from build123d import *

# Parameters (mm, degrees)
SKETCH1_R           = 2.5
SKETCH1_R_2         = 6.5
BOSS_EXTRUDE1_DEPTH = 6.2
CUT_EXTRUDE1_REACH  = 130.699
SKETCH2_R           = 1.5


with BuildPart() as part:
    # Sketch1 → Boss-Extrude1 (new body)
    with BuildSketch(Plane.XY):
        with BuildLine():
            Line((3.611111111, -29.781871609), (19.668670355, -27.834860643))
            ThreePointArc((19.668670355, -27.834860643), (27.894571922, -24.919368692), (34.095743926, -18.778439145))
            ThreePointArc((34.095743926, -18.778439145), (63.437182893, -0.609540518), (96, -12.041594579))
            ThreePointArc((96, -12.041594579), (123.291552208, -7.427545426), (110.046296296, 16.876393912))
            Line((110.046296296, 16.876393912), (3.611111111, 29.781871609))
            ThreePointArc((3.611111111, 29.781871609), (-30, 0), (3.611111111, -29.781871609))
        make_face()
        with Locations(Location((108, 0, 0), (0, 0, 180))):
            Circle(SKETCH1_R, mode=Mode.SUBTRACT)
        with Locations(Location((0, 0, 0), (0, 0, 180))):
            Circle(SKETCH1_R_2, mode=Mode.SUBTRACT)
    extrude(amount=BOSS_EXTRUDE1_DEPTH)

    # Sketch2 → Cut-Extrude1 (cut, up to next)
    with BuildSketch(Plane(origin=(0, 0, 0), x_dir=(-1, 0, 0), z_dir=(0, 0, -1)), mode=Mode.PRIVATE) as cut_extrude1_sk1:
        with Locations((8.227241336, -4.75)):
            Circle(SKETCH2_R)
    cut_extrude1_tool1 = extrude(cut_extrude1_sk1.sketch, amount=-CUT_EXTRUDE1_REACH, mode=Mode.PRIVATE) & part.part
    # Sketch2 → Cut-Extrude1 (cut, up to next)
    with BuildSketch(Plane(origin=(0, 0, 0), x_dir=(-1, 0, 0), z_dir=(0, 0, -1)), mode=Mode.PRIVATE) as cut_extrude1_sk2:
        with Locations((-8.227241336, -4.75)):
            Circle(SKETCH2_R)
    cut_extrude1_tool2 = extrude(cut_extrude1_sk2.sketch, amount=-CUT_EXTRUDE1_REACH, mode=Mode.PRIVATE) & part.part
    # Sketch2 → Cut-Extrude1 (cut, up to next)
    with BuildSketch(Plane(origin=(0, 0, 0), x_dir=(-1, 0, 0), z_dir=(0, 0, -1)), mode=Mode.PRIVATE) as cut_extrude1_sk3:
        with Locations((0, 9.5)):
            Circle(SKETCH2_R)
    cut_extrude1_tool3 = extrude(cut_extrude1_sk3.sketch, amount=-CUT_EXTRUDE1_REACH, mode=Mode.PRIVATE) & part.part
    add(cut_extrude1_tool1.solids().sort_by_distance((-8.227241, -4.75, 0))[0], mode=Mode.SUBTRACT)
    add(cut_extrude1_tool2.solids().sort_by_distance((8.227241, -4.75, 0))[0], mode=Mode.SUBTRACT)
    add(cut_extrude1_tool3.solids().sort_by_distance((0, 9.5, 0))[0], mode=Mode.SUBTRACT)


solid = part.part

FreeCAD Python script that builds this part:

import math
import FreeCAD as App
import Part
import Sketcher

V = App.Vector
Q = App.Units.Quantity

doc = App.newDocument("Part")
params = doc.addObject("Spreadsheet::Sheet", "Params")
for row, (alias, value) in enumerate([
    ("sketch1_diameter", "13 mm"),
    ("sketch1_diameter2", "5 mm"),
    ("sketch1_radius", "20 mm"),
    ("sketch1_radius2", "40 mm"),
    ("sketch1_radius3", "17 mm"),
    ("pad1_length", "6.2 mm"),
    ("sketch2_diameter", "3 mm"),
    ("sketch3_diameter", "3 mm"),
    ("sketch4_diameter", "3 mm"),
], start=1):
    params.set(f"A{row}", alias)
    params.set(f"B{row}", "=" + value)
    params.setAlias(f"B{row}", alias)

body = doc.addObject("PartDesign::Body", "Body")

# Sketch on XY plane
sketch1 = doc.addObject("Sketcher::SketchObject", "Sketch")
body.addObject(sketch1)
sketch1.AttachmentSupport = (doc.XY_Plane, [""])
sketch1.MapMode = "FlatFace"
sketch1.addGeometry(Part.LineSegment(V(3.6, -29.8, 0), V(19.7, -27.8, 0)), False)
sketch1.addGeometry(Part.ArcOfCircle(Part.Circle(V(17.3, -8, 0), V(0, 0, 1), 20), math.radians(-83), math.radians(-33)), False)
sketch1.addGeometry(Part.ArcOfCircle(Part.Circle(V(67.8, -40.4, 0), V(0, 0, 1), 40), math.radians(45), math.radians(147)), False)
sketch1.addGeometry(Part.ArcOfCircle(Part.Circle(V(108, 0, 0), V(0, 0, 1), 17), math.radians(-135), math.radians(83)), False)
sketch1.addGeometry(Part.LineSegment(V(110, 16.9, 0), V(3.6, 29.8, 0)), False)
sketch1.addGeometry(Part.ArcOfCircle(Part.Circle(V(0, 0, 0), V(0, 0, 1), 30), math.radians(83), math.radians(277)), False)
sketch1.addGeometry(Part.Circle(V(0, 0, 0), V(0, 0, 1), 6.5), False)
sketch1.addGeometry(Part.Circle(V(108, 0, 0), V(0, 0, 1), 2.5), False)
sketch1.addConstraint(Sketcher.Constraint("Tangent", 0, 2, 1, 1))
sketch1.addConstraint(Sketcher.Constraint("Tangent", 1, 2, 2, 2))
sketch1.addConstraint(Sketcher.Constraint("Tangent", 2, 1, 3, 1))
sketch1.addConstraint(Sketcher.Constraint("Tangent", 3, 2, 4, 1))
sketch1.addConstraint(Sketcher.Constraint("Tangent", 4, 2, 5, 1))
sketch1.addConstraint(Sketcher.Constraint("Tangent", 5, 2, 0, 1))
sketch1.addConstraint(Sketcher.Constraint("Coincident", 5, 3, -1, 1))
sketch1.addConstraint(Sketcher.Constraint("Coincident", 6, 3, -1, 1))
sketch1.addConstraint(Sketcher.Constraint("Coincident", 7, 3, 3, 3))
sketch1.addConstraint(Sketcher.Constraint("PointOnObject", 3, 3, -1))
sketch1.addConstraint(Sketcher.Constraint("Vertical", 4, 2, 5, 2))
sketch1.addConstraint(Sketcher.Constraint("Diameter", 6, Q("13 mm")))
sketch1.addConstraint(Sketcher.Constraint("Diameter", 7, Q("5 mm")))
sketch1.addConstraint(Sketcher.Constraint("Radius", 1, Q("20 mm")))
sketch1.addConstraint(Sketcher.Constraint("Radius", 2, Q("40 mm")))
sketch1.addConstraint(Sketcher.Constraint("Radius", 3, Q("17 mm")))
sketch1.addConstraint(Sketcher.Constraint("Radius", 5, Q("30 mm")))
sketch1.addConstraint(Sketcher.Constraint("DistanceX", -1, 1, 3, 3, Q("108 mm")))
sketch1.addConstraint(Sketcher.Constraint("DistanceX", -1, 1, 2, 1, Q("96 mm")))
sketch1.setExpression("Constraints[11]", "Params.sketch1_diameter")
sketch1.setExpression("Constraints[12]", "Params.sketch1_diameter2")
sketch1.setExpression("Constraints[13]", "Params.sketch1_radius")
sketch1.setExpression("Constraints[14]", "Params.sketch1_radius2")
sketch1.setExpression("Constraints[15]", "Params.sketch1_radius3")
pad1 = doc.addObject("PartDesign::Pad", "Pad")
body.addObject(pad1)
pad1.Profile = sketch1
pad1.setExpression("Length", "Params.pad1_length")

# Sketch on XY plane
sketch2 = doc.addObject("Sketcher::SketchObject", "Sketch001")
body.addObject(sketch2)
sketch2.AttachmentSupport = (doc.XY_Plane, [""])
sketch2.MapMode = "FlatFace"
sketch2.addGeometry(Part.Circle(V(-8.2, -4.8, 0), V(0, 0, 1), 1.5), False)
sketch2.addConstraint(Sketcher.Constraint("Diameter", 0, Q("3 mm")))
sketch2.addConstraint(Sketcher.Constraint("DistanceY", 0, 3, -1, 1, Q("4.75 mm")))
sketch2.addConstraint(Sketcher.Constraint("DistanceX", 0, 3, -1, 1, Q("8.227241 mm")))
sketch2.setExpression("Constraints[0]", "Params.sketch2_diameter")
pocket1 = doc.addObject("PartDesign::Pocket", "Pocket")
body.addObject(pocket1)
pocket1.Profile = sketch2
pocket1.Type = "UpToFirst"
pocket1.Reversed = True

# Sketch on XY plane
sketch3 = doc.addObject("Sketcher::SketchObject", "Sketch002")
body.addObject(sketch3)
sketch3.AttachmentSupport = (doc.XY_Plane, [""])
sketch3.MapMode = "FlatFace"
sketch3.addGeometry(Part.Circle(V(8.2, -4.8, 0), V(0, 0, 1), 1.5), False)
sketch3.addConstraint(Sketcher.Constraint("Diameter", 0, Q("3 mm")))
sketch3.addConstraint(Sketcher.Constraint("DistanceY", 0, 3, -1, 1, Q("4.75 mm")))
sketch3.addConstraint(Sketcher.Constraint("DistanceX", -1, 1, 0, 3, Q("8.227241 mm")))
sketch3.setExpression("Constraints[0]", "Params.sketch3_diameter")
pocket2 = doc.addObject("PartDesign::Pocket", "Pocket001")
body.addObject(pocket2)
pocket2.Profile = sketch3
pocket2.Type = "UpToFirst"
pocket2.Reversed = True

# Sketch on XY plane
sketch4 = doc.addObject("Sketcher::SketchObject", "Sketch003")
body.addObject(sketch4)
sketch4.AttachmentSupport = (doc.XY_Plane, [""])
sketch4.MapMode = "FlatFace"
sketch4.addGeometry(Part.Circle(V(0, 9.5, 0), V(0, 0, 1), 1.5), False)
sketch4.addConstraint(Sketcher.Constraint("PointOnObject", 0, 3, -2))
sketch4.addConstraint(Sketcher.Constraint("Diameter", 0, Q("3 mm")))
sketch4.addConstraint(Sketcher.Constraint("DistanceY", -1, 1, 0, 3, Q("9.5 mm")))
sketch4.setExpression("Constraints[1]", "Params.sketch4_diameter")
pocket3 = doc.addObject("PartDesign::Pocket", "Pocket002")
body.addObject(pocket3)
pocket3.Profile = sketch4
pocket3.Type = "UpToFirst"
pocket3.Reversed = True

doc.recompute()
